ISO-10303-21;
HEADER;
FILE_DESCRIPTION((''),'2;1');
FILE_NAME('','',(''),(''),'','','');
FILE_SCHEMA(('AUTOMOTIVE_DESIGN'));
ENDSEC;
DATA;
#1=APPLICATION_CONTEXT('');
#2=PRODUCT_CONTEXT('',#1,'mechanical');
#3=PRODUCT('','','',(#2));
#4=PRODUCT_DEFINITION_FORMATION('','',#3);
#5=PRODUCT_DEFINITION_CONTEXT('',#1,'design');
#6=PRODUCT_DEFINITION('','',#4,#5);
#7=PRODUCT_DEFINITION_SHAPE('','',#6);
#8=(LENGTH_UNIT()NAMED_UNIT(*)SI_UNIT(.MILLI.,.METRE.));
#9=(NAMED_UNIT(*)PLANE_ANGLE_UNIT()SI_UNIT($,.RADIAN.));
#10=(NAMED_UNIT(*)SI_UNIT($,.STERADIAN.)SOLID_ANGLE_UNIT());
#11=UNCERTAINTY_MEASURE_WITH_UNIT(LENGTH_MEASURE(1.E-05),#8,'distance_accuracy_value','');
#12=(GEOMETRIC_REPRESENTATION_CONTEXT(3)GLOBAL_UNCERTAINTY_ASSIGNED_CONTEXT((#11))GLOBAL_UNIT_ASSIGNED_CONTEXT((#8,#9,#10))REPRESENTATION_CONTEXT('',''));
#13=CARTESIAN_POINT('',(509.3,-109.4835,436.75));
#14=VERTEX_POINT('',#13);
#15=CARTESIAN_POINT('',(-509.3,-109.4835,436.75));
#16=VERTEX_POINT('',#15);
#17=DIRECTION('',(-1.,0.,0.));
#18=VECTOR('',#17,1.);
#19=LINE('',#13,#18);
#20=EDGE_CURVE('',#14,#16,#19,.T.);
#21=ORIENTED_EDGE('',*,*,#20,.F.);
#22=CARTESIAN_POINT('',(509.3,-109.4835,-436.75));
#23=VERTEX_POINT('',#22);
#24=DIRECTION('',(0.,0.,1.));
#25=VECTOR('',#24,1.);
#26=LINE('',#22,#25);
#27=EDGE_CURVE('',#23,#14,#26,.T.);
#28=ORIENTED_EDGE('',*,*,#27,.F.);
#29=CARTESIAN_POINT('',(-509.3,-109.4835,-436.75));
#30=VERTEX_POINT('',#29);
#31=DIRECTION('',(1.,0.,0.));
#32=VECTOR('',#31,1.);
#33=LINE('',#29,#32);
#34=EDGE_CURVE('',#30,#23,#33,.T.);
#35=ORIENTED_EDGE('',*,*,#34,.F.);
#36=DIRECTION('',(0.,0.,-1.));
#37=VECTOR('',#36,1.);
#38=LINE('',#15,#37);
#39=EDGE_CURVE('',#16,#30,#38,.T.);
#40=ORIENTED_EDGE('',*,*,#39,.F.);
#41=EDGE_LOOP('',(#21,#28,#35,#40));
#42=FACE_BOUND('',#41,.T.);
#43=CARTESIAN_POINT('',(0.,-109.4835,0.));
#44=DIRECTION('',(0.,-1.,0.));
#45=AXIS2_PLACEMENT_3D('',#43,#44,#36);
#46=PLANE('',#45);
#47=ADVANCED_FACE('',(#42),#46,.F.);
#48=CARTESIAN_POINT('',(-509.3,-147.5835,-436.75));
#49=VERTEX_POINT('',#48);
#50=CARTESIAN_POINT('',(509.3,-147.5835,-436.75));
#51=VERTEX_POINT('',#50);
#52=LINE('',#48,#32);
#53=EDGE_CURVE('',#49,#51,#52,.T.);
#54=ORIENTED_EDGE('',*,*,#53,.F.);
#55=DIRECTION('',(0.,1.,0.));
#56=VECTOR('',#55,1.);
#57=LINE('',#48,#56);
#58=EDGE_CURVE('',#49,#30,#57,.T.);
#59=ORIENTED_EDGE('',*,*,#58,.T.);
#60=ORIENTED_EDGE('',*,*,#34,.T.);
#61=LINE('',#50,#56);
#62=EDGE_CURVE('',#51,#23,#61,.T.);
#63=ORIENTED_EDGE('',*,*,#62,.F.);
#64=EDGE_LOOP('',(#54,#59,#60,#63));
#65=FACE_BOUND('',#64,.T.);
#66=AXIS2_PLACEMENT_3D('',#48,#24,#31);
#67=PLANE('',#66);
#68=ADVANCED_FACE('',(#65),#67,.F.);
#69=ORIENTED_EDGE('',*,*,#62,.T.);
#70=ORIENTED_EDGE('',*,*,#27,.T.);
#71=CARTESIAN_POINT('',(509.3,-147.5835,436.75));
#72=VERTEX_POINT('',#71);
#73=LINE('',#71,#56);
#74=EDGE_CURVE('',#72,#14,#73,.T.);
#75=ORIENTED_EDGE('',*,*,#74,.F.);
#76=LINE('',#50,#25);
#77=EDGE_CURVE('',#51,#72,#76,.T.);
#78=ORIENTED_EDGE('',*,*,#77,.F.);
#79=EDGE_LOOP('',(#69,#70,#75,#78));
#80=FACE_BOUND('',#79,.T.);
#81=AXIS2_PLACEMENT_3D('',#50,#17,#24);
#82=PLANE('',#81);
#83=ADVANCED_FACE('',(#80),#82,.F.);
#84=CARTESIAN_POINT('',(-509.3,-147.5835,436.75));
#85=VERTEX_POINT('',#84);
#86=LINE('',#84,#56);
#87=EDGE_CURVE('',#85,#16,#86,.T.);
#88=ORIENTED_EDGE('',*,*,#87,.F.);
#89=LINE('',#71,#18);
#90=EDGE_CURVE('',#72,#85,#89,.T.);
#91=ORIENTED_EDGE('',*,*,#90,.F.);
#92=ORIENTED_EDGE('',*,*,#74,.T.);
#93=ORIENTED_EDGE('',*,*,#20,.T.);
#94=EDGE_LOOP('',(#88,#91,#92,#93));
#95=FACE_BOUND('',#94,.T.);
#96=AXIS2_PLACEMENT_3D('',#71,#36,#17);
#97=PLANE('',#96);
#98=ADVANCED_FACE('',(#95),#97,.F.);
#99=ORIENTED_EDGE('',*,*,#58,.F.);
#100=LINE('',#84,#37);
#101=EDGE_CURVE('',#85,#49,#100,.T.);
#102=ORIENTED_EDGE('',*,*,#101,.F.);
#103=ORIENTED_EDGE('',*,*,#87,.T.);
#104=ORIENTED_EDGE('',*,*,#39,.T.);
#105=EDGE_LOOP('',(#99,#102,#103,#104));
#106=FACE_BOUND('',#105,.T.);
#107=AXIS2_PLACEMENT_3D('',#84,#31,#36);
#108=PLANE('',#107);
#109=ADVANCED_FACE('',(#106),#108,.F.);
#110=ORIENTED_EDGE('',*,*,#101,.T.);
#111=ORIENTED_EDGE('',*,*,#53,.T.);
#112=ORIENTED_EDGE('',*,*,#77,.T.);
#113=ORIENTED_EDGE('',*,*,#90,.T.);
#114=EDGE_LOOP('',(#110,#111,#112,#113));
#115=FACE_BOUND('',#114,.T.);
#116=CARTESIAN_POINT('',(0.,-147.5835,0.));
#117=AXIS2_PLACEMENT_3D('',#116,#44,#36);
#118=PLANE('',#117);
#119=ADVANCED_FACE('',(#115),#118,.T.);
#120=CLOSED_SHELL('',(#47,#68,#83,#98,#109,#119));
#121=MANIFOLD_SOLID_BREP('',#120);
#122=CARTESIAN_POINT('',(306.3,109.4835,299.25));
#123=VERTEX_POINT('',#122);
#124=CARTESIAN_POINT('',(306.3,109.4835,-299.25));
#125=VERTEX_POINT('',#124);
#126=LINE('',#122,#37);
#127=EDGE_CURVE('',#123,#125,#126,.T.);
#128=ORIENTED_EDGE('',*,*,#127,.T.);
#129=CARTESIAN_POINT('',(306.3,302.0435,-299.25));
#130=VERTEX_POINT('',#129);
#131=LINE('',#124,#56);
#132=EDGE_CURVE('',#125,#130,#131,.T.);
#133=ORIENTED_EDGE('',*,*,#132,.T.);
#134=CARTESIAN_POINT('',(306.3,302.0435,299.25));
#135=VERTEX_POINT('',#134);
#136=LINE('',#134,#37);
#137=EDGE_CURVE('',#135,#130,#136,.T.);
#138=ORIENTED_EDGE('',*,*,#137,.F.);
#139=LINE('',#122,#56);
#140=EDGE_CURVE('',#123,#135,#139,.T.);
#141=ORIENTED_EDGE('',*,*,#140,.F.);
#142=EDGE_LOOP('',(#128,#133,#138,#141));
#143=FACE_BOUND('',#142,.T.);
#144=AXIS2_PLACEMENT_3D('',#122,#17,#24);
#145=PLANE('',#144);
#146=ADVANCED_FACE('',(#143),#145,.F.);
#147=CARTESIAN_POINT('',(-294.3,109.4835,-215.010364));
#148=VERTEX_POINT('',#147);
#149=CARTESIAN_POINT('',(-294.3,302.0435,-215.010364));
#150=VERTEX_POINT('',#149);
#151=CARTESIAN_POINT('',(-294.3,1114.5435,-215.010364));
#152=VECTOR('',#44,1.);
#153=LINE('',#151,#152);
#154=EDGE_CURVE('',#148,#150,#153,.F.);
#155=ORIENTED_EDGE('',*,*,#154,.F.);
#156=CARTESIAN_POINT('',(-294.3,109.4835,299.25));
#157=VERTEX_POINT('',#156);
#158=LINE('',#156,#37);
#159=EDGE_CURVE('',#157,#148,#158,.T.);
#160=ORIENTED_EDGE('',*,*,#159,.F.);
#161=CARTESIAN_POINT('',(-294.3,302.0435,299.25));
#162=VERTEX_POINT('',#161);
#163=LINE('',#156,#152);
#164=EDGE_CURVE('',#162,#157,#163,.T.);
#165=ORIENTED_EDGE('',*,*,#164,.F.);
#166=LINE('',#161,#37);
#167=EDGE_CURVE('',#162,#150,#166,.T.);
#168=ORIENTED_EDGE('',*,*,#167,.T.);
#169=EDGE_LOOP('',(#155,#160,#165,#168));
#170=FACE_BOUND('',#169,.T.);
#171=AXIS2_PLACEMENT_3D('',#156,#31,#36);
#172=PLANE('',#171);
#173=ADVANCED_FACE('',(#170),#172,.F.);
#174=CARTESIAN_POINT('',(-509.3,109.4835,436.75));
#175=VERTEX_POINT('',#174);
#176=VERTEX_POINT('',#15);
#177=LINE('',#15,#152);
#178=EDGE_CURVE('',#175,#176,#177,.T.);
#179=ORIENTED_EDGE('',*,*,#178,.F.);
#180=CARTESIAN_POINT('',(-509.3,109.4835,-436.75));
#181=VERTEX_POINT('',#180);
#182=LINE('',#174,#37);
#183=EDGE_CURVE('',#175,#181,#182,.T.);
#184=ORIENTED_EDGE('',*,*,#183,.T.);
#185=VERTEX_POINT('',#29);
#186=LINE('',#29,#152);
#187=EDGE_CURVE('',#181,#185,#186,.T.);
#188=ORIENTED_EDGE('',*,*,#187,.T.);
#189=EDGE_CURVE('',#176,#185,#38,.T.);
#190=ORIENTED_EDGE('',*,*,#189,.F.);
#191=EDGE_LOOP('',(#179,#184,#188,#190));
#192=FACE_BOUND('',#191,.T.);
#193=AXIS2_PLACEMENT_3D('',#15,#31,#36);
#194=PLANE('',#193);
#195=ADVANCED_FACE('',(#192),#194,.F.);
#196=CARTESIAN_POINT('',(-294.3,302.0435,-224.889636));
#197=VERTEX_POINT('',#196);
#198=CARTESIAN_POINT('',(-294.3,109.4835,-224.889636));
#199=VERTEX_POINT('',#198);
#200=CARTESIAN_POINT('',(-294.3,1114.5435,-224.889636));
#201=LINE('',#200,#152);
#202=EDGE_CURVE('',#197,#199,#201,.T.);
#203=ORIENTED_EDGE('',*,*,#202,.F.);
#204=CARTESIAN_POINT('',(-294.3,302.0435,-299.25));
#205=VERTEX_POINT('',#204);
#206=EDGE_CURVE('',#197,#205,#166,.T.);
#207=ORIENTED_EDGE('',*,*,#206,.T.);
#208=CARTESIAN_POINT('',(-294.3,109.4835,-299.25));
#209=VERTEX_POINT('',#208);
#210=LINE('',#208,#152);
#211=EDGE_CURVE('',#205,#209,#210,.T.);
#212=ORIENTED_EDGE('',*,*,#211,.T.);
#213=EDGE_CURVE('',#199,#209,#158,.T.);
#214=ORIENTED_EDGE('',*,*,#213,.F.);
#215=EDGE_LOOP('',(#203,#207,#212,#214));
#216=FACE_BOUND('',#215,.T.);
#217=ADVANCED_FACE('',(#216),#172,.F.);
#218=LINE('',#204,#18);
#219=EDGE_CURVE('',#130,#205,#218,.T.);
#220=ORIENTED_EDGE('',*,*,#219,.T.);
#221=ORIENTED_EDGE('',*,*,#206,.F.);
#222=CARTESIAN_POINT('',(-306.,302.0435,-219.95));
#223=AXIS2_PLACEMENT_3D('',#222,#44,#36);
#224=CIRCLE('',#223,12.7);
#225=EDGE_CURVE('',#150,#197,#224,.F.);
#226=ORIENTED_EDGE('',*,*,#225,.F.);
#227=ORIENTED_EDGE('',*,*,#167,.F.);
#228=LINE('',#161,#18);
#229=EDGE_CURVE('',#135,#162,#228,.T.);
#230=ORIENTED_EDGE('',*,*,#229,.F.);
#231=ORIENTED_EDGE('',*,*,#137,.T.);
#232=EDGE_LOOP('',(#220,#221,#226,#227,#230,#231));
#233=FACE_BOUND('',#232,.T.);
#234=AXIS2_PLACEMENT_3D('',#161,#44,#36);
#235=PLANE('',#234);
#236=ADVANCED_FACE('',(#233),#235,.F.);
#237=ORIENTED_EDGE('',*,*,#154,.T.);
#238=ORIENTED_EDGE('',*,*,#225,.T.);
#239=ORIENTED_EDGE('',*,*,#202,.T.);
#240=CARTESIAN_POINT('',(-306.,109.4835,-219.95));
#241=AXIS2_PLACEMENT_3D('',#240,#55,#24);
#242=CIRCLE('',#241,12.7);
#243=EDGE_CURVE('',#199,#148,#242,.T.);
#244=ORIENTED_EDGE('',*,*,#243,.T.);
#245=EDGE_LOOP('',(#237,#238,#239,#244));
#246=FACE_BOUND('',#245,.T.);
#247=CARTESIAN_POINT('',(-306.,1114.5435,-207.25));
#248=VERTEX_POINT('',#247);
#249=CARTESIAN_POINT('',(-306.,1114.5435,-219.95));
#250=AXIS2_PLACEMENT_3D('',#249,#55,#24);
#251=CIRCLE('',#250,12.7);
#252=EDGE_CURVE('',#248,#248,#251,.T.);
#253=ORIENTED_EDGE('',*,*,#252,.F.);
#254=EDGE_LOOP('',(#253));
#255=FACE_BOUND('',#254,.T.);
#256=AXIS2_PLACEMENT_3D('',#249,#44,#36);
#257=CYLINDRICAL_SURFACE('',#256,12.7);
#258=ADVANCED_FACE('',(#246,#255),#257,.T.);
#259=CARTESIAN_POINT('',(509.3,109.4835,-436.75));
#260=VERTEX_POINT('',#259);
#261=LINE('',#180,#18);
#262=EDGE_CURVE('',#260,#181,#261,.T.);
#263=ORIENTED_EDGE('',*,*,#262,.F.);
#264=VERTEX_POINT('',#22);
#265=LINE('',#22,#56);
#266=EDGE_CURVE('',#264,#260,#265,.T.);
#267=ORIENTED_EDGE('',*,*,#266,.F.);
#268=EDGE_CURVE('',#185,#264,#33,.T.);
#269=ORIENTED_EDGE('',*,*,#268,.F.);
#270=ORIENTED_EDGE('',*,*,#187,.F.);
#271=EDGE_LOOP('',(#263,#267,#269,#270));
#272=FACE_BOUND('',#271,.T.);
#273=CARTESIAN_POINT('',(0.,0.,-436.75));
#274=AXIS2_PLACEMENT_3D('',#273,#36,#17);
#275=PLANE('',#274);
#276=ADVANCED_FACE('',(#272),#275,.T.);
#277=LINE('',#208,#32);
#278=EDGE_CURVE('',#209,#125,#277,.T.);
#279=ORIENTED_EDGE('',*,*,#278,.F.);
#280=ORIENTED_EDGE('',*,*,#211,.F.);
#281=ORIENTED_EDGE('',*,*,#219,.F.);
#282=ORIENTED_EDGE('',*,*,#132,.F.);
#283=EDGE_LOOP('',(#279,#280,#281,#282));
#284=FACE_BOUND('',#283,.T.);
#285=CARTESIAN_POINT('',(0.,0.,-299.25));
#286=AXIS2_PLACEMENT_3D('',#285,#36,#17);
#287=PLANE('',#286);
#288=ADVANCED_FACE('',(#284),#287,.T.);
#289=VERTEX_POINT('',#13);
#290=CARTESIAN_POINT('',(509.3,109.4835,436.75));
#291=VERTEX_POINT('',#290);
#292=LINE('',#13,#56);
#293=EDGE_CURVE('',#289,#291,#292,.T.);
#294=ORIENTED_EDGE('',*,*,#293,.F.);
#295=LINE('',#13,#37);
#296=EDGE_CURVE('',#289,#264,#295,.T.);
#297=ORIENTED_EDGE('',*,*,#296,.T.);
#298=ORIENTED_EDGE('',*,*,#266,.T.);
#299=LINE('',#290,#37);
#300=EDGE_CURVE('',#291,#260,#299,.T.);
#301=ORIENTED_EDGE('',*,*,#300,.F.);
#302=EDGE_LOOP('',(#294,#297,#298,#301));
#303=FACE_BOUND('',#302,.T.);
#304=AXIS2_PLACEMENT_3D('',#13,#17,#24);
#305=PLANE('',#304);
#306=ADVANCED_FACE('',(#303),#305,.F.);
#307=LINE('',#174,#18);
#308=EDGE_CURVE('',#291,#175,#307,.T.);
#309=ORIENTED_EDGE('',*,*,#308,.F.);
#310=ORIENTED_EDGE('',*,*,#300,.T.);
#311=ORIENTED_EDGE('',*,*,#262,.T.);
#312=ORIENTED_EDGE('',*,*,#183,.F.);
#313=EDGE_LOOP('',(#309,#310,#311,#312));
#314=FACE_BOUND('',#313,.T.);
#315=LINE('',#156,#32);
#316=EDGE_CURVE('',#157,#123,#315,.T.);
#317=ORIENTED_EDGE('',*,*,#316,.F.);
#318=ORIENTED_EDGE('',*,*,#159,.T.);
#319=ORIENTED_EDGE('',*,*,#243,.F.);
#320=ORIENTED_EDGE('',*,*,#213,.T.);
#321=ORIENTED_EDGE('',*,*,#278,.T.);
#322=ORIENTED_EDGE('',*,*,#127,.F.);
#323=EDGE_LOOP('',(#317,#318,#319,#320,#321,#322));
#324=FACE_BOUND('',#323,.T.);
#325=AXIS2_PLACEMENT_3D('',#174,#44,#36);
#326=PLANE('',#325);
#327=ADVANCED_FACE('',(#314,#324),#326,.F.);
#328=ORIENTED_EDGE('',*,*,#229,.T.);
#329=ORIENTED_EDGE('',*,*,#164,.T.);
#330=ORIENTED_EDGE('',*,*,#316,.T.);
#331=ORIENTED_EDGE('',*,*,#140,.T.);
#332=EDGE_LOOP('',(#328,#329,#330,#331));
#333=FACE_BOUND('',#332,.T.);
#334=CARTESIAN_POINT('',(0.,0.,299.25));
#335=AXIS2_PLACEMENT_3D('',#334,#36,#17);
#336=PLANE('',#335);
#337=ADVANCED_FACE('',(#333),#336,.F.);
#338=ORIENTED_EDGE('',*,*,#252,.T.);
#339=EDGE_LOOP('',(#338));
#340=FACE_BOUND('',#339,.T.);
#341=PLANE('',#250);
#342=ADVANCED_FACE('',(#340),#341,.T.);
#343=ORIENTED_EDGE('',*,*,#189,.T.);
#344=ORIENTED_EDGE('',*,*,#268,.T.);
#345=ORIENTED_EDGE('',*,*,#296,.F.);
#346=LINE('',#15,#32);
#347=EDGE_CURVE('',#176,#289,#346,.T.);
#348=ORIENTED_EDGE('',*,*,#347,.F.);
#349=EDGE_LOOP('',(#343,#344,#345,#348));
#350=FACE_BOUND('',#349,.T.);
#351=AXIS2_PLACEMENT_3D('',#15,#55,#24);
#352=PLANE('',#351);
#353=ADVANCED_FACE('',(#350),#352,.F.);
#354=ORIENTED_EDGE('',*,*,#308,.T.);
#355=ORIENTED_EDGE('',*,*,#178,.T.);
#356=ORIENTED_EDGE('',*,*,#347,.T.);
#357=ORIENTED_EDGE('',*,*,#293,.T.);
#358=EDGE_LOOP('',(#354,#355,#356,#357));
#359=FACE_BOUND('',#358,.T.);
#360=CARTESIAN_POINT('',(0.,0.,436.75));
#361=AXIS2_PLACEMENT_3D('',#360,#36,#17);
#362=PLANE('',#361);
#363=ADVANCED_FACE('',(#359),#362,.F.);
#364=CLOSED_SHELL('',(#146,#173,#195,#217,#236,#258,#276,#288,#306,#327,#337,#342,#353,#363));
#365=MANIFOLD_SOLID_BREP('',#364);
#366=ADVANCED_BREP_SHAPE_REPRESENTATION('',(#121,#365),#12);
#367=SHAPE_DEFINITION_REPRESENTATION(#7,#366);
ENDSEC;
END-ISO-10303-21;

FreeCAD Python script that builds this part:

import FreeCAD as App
import Part
import Sketcher

doc = App.newDocument("Part")
body = doc.addObject("PartDesign::Body", "Body")

sketch1 = body.newObject("Sketcher::SketchObject", "Sketch")
sketch1.AttachmentSupport = (doc.getObject("XY_Plane"), [""])
sketch1.MapMode = "FlatFace"
sketch1.addGeometry(Part.LineSegment(App.Vector(-509, 109, 0), App.Vector(-509, -109, 0)), False)
sketch1.addGeometry(Part.LineSegment(App.Vector(-509, -109, 0), App.Vector(509, -109, 0)), False)
sketch1.addGeometry(Part.LineSegment(App.Vector(509, -109, 0), App.Vector(509, 109, 0)), False)
sketch1.addGeometry(Part.LineSegment(App.Vector(509, 109, 0), App.Vector(-509, 109, 0)), False)
sketch1.addConstraint(Sketcher.Constraint("Coincident", 0, 2, 1, 1))
sketch1.addConstraint(Sketcher.Constraint("Coincident", 1, 2, 2, 1))
sketch1.addConstraint(Sketcher.Constraint("Coincident", 2, 2, 3, 1))
sketch1.addConstraint(Sketcher.Constraint("Coincident", 3, 2, 0, 1))
sketch1.addConstraint(Sketcher.Constraint("Vertical", 0))
sketch1.addConstraint(Sketcher.Constraint("Horizontal", 1))
sketch1.addConstraint(Sketcher.Constraint("Vertical", 2))
sketch1.addConstraint(Sketcher.Constraint("Horizontal", 3))
sketch1.addConstraint(Sketcher.Constraint("Symmetric", 0, 2, 2, 2, -1, 1))
sketch1.addConstraint(Sketcher.Constraint("DistanceX", 1, 1, 1, 2, 1018.6))
sketch1.addConstraint(Sketcher.Constraint("DistanceY", 0, 2, 0, 1, 218.967))
pad1 = body.newObject("PartDesign::Pad", "Pad")
pad1.Profile = sketch1
pad1.Length = 873.5
pad1.Midplane = True

sketch2 = body.newObject("Sketcher::SketchObject", "Sketch001")
sketch2.AttachmentSupport = (doc.getObject("XY_Plane"), [""])
sketch2.MapMode = "FlatFace"
sketch2.addGeometry(Part.LineSegment(App.Vector(-294, 302, 0), App.Vector(-294, 109, 0)), False)
sketch2.addGeometry(Part.LineSegment(App.Vector(-294, 109, 0), App.Vector(306, 109, 0)), False)
sketch2.addGeometry(Part.LineSegment(App.Vector(306, 109, 0), App.Vector(306, 302, 0)), False)
sketch2.addGeometry(Part.LineSegment(App.Vector(306, 302, 0), App.Vector(-294, 302, 0)), False)
sketch2.addConstraint(Sketcher.Constraint("Coincident", 0, 2, 1, 1))
sketch2.addConstraint(Sketcher.Constraint("Coincident", 1, 2, 2, 1))
sketch2.addConstraint(Sketcher.Constraint("Coincident", 2, 2, 3, 1))
sketch2.addConstraint(Sketcher.Constraint("Coincident", 3, 2, 0, 1))
sketch2.addConstraint(Sketcher.Constraint("Vertical", 0))
sketch2.addConstraint(Sketcher.Constraint("Horizontal", 1))
sketch2.addConstraint(Sketcher.Constraint("Vertical", 2))
sketch2.addConstraint(Sketcher.Constraint("Horizontal", 3))
sketch2.addConstraint(Sketcher.Constraint("DistanceX", 1, 1, 1, 2, 600.6))
sketch2.addConstraint(Sketcher.Constraint("DistanceY", 0, 2, 0, 1, 192.56))
sketch2.addConstraint(Sketcher.Constraint("DistanceX", 0, 2, -1, 1, 294.3))
sketch2.addConstraint(Sketcher.Constraint("DistanceY", -1, 1, 0, 2, 109.4835))
pad2 = body.newObject("PartDesign::Pad", "Pad001")
pad2.Profile = sketch2
pad2.Length = 598.5
pad2.Midplane = True

sketch3 = body.newObject("Sketcher::SketchObject", "Sketch002")
sketch3.AttachmentSupport = (doc.getObject("XZ_Plane"), [""])
sketch3.MapMode = "FlatFace"
sketch3.AttachmentOffset = App.Placement(App.Vector(0, 0, -109.4835), App.Rotation())
sketch3.addGeometry(Part.Circle(App.Vector(-306, -220, 0), App.Vector(0, 0, 1), 13), False)
sketch3.addConstraint(Sketcher.Constraint("Diameter", 0, 25.4))
sketch3.addConstraint(Sketcher.Constraint("DistanceX", 0, 3, -1, 1, 306.0))
sketch3.addConstraint(Sketcher.Constraint("DistanceY", 0, 3, -1, 1, 219.95))
pad3 = body.newObject("PartDesign::Pad", "Pad002")
pad3.Profile = sketch3
pad3.Length = 1005.06
pad3.Reversed = True
body2 = doc.addObject("PartDesign::Body", "Body001")

sketch4 = body2.newObject("Sketcher::SketchObject", "Sketch003")
sketch4.AttachmentSupport = (doc.getObject("XZ_Plane001"), [""])
sketch4.MapMode = "FlatFace"
sketch4.AttachmentOffset = App.Placement(App.Vector(0, 0, 109.4835), App.Rotation())
sketch4.addGeometry(Part.LineSegment(App.Vector(-509, 437, 0), App.Vector(-509, -437, 0)), False)
sketch4.addGeometry(Part.LineSegment(App.Vector(-509, -437, 0), App.Vector(509, -437, 0)), False)
sketch4.addGeometry(Part.LineSegment(App.Vector(509, -437, 0), App.Vector(509, 437, 0)), False)
sketch4.addGeometry(Part.LineSegment(App.Vector(509, 437, 0), App.Vector(-509, 437, 0)), False)
sketch4.addConstraint(Sketcher.Constraint("Coincident", 0, 2, 1, 1))
sketch4.addConstraint(Sketcher.Constraint("Coincident", 1, 2, 2, 1))
sketch4.addConstraint(Sketcher.Constraint("Coincident", 2, 2, 3, 1))
sketch4.addConstraint(Sketcher.Constraint("Coincident", 3, 2, 0, 1))
sketch4.addConstraint(Sketcher.Constraint("Vertical", 0))
sketch4.addConstraint(Sketcher.Constraint("Horizontal", 1))
sketch4.addConstraint(Sketcher.Constraint("Vertical", 2))
sketch4.addConstraint(Sketcher.Constraint("Horizontal", 3))
sketch4.addConstraint(Sketcher.Constraint("Symmetric", 0, 2, 2, 2, -1, 1))
sketch4.addConstraint(Sketcher.Constraint("DistanceX", 1, 1, 1, 2, 1018.6))
sketch4.addConstraint(Sketcher.Constraint("DistanceY", 0, 2, 0, 1, 873.5))
pad4 = body2.newObject("PartDesign::Pad", "Pad003")
pad4.Profile = sketch4
pad4.Length = 38.1

doc.recompute()
